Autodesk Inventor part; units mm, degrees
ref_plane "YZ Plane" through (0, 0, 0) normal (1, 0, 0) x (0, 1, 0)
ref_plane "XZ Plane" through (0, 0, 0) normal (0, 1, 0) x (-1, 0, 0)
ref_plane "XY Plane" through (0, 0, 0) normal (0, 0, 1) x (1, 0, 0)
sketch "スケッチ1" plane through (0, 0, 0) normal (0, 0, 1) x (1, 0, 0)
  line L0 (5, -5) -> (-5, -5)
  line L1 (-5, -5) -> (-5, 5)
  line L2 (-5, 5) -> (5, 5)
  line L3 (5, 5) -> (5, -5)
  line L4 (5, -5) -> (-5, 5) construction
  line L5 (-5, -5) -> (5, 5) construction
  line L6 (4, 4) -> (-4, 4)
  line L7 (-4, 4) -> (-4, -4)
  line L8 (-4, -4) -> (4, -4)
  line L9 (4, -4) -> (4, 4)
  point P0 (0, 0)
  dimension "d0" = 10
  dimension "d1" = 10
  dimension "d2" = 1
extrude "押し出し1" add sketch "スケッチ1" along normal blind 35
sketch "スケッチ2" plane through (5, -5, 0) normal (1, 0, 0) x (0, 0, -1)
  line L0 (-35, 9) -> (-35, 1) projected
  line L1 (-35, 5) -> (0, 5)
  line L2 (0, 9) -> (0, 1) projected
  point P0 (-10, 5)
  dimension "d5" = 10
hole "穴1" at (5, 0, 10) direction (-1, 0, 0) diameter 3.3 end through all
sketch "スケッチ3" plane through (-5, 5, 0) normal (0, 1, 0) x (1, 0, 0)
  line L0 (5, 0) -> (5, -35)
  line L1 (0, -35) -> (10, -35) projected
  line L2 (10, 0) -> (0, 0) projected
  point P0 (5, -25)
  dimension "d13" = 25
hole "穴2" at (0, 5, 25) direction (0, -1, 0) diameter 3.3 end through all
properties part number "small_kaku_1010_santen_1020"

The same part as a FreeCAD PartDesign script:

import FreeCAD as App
import Part
import Sketcher
from FreeCAD import Vector
Q = App.Units.Quantity


def add_polygon(sketch, points):
    """Adds a closed chain of lines whose ends are joined by coincident constraints."""
    first, n = sketch.GeometryCount, len(points)
    for a, b in zip(points, points[1:] + points[:1]):
        sketch.addGeometry(Part.LineSegment(App.Vector(*a, 0), App.Vector(*b, 0)), False)
    for i in range(n):
        sketch.addConstraint(Sketcher.Constraint("Coincident", first + i, 2, first + (i + 1) % n, 1))

doc = App.newDocument("Part")
body = doc.addObject("PartDesign::Body", "Body")

sketch1 = body.newObject("Sketcher::SketchObject", "Sketch")
sketch1.AttachmentSupport = (doc.getObject("XY_Plane"), [""])
sketch1.MapMode = "FlatFace"
add_polygon(sketch1, [(-5, -5), (5, -5), (5, 5), (-5, 5)])
add_polygon(sketch1, [(-4, 4), (4, 4), (4, -4), (-4, -4)])
sketch1.addConstraint(Sketcher.Constraint("Horizontal", 0))
sketch1.addConstraint(Sketcher.Constraint("Vertical", 1))
sketch1.addConstraint(Sketcher.Constraint("Horizontal", 2))
sketch1.addConstraint(Sketcher.Constraint("Vertical", 3))
sketch1.addConstraint(Sketcher.Constraint("Horizontal", 4))
sketch1.addConstraint(Sketcher.Constraint("Vertical", 5))
sketch1.addConstraint(Sketcher.Constraint("Horizontal", 6))
sketch1.addConstraint(Sketcher.Constraint("Vertical", 7))
sketch1.addConstraint(Sketcher.Constraint("Symmetric", 0, 2, 2, 2, -1, 1))
sketch1.addConstraint(Sketcher.Constraint("Symmetric", 4, 2, 6, 2, -1, 1))
sketch1.addConstraint(Sketcher.Constraint("Equal", 2, 1))
sketch1.addConstraint(Sketcher.Constraint("Equal", 6, 5))
sketch1.addConstraint(Sketcher.Constraint("DistanceX", 0, 1, 0, 2, Q("10 mm")))
sketch1.addConstraint(Sketcher.Constraint("DistanceX", 4, 2, 1, 2, Q("1 mm")))
pad1 = body.newObject("PartDesign::Pad", "Pad")
pad1.Profile = sketch1
pad1.Length = 35

sketch2 = body.newObject("Sketcher::SketchObject", "Sketch001")
sketch2.AttachmentSupport = (doc.getObject("YZ_Plane"), [""])
sketch2.MapMode = "FlatFace"
sketch2.AttachmentOffset = App.Placement(Vector(0, 0, 5), App.Rotation())
sketch2.addGeometry(Part.Circle(Vector(0, 10, 0), Vector(0, 0, 1), 1.65), False)
sketch2.addConstraint(Sketcher.Constraint("PointOnObject", 0, 3, -2))
sketch2.addConstraint(Sketcher.Constraint("Diameter", 0, Q("3.3 mm")))
sketch2.addConstraint(Sketcher.Constraint("DistanceY", -1, 1, 0, 3, Q("10 mm")))
doc.recompute()
hole = body.newObject("PartDesign::Hole", "Hole")
hole.Profile = sketch2
hole.ThreadType = "None"
hole.Diameter = 3.3
hole.DepthType = "ThroughAll"

sketch3 = body.newObject("Sketcher::SketchObject", "Sketch002")
sketch3.AttachmentSupport = (doc.getObject("XZ_Plane"), [""])
sketch3.MapMode = "FlatFace"
sketch3.AttachmentOffset = App.Placement(Vector(0, 0, -5), App.Rotation())
sketch3.addGeometry(Part.Circle(Vector(0, 25, 0), Vector(0, 0, 1), 1.65), False)
sketch3.addConstraint(Sketcher.Constraint("PointOnObject", 0, 3, -2))
sketch3.addConstraint(Sketcher.Constraint("Diameter", 0, Q("3.3 mm")))
sketch3.addConstraint(Sketcher.Constraint("DistanceY", -1, 1, 0, 3, Q("25 mm")))
doc.recompute()
hole2 = body.newObject("PartDesign::Hole", "Hole001")
hole2.Profile = sketch3
hole2.ThreadType = "None"
hole2.Diameter = 3.3
hole2.DepthType = "ThroughAll"
hole2.Reversed = True

doc.recompute()
